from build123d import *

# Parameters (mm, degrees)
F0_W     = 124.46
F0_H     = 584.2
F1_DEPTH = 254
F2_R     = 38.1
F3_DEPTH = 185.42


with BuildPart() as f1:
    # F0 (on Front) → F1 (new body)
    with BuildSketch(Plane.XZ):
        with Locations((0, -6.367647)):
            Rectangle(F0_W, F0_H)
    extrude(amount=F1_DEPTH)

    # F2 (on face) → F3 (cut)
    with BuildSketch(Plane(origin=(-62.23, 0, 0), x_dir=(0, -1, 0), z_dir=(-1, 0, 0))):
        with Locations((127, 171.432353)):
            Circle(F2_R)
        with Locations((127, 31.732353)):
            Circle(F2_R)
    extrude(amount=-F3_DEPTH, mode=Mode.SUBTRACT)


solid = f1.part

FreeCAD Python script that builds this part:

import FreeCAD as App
import Part
import Sketcher

V = App.Vector
Q = App.Units.Quantity


def add_polygon(sketch, points):
    """Adds a closed chain of lines whose ends are joined by coincident constraints."""
    first, n = sketch.GeometryCount, len(points)
    for a, b in zip(points, points[1:] + points[:1]):
        sketch.addGeometry(Part.LineSegment(App.Vector(*a, 0), App.Vector(*b, 0)), False)
    for i in range(n):
        sketch.addConstraint(Sketcher.Constraint("Coincident", first + i, 2, first + (i + 1) % n, 1))

doc = App.newDocument("Part")
body = doc.addObject("PartDesign::Body", "Body")

# Sketch on XZ plane
sketch1 = body.newObject("Sketcher::SketchObject", "Sketch")
sketch1.AttachmentSupport = (doc.getObject("XZ_Plane"), [""])
sketch1.MapMode = "FlatFace"
add_polygon(sketch1, [(-62, 286), (-62, -298), (62, -298), (62, 286)])  # lines 0-3
sketch1.addConstraint(Sketcher.Constraint("Vertical", 0))
sketch1.addConstraint(Sketcher.Constraint("Horizontal", 1))
sketch1.addConstraint(Sketcher.Constraint("Vertical", 2))
sketch1.addConstraint(Sketcher.Constraint("Horizontal", 3))
sketch1.addConstraint(Sketcher.Constraint("DistanceY", 0, 2, 0, 1, Q("23 in")))
sketch1.addConstraint(Sketcher.Constraint("DistanceX", 1, 1, 1, 2, Q("4.9 in")))
sketch1.addConstraint(Sketcher.Constraint("DistanceX", 0, 2, -1, 1, Q("2.45 in")))
sketch1.addConstraint(Sketcher.Constraint("DistanceY", 0, 2, -1, 1, 298.467647))
pad1 = body.newObject("PartDesign::Pad", "Pad")
pad1.Profile = sketch1
pad1.Length = Q("10 in")

# Sketch on YZ plane
sketch2 = body.newObject("Sketcher::SketchObject", "Sketch001")
sketch2.AttachmentSupport = (doc.getObject("YZ_Plane"), [""])
sketch2.MapMode = "FlatFace"
sketch2.AttachmentOffset = App.Placement(V(0, 0, -2.45 * 25.4), App.Rotation())
sketch2.addGeometry(Part.Circle(V(-127, 171, 0), V(0, 0, 1), 38), False)
sketch2.addGeometry(Part.Circle(V(-127, 32, 0), V(0, 0, 1), 38), False)
sketch2.addConstraint(Sketcher.Constraint("Equal", 0, 1))
sketch2.addConstraint(Sketcher.Constraint("Vertical", 0, 3, 1, 3))
sketch2.addConstraint(Sketcher.Constraint("Diameter", 0, Q("3 in")))
sketch2.addConstraint(Sketcher.Constraint("DistanceX", 0, 3, -1, 1, Q("5 in")))
sketch2.addConstraint(Sketcher.Constraint("DistanceY", 1, 3, 0, 3, Q("5.5 in")))
sketch2.addConstraint(Sketcher.Constraint("DistanceY", -1, 1, 0, 3, 171.432353))
pocket1 = body.newObject("PartDesign::Pocket", "Pocket")
pocket1.Profile = sketch2
pocket1.Length = Q("7.3 in")
pocket1.Reversed = True

doc.recompute()
